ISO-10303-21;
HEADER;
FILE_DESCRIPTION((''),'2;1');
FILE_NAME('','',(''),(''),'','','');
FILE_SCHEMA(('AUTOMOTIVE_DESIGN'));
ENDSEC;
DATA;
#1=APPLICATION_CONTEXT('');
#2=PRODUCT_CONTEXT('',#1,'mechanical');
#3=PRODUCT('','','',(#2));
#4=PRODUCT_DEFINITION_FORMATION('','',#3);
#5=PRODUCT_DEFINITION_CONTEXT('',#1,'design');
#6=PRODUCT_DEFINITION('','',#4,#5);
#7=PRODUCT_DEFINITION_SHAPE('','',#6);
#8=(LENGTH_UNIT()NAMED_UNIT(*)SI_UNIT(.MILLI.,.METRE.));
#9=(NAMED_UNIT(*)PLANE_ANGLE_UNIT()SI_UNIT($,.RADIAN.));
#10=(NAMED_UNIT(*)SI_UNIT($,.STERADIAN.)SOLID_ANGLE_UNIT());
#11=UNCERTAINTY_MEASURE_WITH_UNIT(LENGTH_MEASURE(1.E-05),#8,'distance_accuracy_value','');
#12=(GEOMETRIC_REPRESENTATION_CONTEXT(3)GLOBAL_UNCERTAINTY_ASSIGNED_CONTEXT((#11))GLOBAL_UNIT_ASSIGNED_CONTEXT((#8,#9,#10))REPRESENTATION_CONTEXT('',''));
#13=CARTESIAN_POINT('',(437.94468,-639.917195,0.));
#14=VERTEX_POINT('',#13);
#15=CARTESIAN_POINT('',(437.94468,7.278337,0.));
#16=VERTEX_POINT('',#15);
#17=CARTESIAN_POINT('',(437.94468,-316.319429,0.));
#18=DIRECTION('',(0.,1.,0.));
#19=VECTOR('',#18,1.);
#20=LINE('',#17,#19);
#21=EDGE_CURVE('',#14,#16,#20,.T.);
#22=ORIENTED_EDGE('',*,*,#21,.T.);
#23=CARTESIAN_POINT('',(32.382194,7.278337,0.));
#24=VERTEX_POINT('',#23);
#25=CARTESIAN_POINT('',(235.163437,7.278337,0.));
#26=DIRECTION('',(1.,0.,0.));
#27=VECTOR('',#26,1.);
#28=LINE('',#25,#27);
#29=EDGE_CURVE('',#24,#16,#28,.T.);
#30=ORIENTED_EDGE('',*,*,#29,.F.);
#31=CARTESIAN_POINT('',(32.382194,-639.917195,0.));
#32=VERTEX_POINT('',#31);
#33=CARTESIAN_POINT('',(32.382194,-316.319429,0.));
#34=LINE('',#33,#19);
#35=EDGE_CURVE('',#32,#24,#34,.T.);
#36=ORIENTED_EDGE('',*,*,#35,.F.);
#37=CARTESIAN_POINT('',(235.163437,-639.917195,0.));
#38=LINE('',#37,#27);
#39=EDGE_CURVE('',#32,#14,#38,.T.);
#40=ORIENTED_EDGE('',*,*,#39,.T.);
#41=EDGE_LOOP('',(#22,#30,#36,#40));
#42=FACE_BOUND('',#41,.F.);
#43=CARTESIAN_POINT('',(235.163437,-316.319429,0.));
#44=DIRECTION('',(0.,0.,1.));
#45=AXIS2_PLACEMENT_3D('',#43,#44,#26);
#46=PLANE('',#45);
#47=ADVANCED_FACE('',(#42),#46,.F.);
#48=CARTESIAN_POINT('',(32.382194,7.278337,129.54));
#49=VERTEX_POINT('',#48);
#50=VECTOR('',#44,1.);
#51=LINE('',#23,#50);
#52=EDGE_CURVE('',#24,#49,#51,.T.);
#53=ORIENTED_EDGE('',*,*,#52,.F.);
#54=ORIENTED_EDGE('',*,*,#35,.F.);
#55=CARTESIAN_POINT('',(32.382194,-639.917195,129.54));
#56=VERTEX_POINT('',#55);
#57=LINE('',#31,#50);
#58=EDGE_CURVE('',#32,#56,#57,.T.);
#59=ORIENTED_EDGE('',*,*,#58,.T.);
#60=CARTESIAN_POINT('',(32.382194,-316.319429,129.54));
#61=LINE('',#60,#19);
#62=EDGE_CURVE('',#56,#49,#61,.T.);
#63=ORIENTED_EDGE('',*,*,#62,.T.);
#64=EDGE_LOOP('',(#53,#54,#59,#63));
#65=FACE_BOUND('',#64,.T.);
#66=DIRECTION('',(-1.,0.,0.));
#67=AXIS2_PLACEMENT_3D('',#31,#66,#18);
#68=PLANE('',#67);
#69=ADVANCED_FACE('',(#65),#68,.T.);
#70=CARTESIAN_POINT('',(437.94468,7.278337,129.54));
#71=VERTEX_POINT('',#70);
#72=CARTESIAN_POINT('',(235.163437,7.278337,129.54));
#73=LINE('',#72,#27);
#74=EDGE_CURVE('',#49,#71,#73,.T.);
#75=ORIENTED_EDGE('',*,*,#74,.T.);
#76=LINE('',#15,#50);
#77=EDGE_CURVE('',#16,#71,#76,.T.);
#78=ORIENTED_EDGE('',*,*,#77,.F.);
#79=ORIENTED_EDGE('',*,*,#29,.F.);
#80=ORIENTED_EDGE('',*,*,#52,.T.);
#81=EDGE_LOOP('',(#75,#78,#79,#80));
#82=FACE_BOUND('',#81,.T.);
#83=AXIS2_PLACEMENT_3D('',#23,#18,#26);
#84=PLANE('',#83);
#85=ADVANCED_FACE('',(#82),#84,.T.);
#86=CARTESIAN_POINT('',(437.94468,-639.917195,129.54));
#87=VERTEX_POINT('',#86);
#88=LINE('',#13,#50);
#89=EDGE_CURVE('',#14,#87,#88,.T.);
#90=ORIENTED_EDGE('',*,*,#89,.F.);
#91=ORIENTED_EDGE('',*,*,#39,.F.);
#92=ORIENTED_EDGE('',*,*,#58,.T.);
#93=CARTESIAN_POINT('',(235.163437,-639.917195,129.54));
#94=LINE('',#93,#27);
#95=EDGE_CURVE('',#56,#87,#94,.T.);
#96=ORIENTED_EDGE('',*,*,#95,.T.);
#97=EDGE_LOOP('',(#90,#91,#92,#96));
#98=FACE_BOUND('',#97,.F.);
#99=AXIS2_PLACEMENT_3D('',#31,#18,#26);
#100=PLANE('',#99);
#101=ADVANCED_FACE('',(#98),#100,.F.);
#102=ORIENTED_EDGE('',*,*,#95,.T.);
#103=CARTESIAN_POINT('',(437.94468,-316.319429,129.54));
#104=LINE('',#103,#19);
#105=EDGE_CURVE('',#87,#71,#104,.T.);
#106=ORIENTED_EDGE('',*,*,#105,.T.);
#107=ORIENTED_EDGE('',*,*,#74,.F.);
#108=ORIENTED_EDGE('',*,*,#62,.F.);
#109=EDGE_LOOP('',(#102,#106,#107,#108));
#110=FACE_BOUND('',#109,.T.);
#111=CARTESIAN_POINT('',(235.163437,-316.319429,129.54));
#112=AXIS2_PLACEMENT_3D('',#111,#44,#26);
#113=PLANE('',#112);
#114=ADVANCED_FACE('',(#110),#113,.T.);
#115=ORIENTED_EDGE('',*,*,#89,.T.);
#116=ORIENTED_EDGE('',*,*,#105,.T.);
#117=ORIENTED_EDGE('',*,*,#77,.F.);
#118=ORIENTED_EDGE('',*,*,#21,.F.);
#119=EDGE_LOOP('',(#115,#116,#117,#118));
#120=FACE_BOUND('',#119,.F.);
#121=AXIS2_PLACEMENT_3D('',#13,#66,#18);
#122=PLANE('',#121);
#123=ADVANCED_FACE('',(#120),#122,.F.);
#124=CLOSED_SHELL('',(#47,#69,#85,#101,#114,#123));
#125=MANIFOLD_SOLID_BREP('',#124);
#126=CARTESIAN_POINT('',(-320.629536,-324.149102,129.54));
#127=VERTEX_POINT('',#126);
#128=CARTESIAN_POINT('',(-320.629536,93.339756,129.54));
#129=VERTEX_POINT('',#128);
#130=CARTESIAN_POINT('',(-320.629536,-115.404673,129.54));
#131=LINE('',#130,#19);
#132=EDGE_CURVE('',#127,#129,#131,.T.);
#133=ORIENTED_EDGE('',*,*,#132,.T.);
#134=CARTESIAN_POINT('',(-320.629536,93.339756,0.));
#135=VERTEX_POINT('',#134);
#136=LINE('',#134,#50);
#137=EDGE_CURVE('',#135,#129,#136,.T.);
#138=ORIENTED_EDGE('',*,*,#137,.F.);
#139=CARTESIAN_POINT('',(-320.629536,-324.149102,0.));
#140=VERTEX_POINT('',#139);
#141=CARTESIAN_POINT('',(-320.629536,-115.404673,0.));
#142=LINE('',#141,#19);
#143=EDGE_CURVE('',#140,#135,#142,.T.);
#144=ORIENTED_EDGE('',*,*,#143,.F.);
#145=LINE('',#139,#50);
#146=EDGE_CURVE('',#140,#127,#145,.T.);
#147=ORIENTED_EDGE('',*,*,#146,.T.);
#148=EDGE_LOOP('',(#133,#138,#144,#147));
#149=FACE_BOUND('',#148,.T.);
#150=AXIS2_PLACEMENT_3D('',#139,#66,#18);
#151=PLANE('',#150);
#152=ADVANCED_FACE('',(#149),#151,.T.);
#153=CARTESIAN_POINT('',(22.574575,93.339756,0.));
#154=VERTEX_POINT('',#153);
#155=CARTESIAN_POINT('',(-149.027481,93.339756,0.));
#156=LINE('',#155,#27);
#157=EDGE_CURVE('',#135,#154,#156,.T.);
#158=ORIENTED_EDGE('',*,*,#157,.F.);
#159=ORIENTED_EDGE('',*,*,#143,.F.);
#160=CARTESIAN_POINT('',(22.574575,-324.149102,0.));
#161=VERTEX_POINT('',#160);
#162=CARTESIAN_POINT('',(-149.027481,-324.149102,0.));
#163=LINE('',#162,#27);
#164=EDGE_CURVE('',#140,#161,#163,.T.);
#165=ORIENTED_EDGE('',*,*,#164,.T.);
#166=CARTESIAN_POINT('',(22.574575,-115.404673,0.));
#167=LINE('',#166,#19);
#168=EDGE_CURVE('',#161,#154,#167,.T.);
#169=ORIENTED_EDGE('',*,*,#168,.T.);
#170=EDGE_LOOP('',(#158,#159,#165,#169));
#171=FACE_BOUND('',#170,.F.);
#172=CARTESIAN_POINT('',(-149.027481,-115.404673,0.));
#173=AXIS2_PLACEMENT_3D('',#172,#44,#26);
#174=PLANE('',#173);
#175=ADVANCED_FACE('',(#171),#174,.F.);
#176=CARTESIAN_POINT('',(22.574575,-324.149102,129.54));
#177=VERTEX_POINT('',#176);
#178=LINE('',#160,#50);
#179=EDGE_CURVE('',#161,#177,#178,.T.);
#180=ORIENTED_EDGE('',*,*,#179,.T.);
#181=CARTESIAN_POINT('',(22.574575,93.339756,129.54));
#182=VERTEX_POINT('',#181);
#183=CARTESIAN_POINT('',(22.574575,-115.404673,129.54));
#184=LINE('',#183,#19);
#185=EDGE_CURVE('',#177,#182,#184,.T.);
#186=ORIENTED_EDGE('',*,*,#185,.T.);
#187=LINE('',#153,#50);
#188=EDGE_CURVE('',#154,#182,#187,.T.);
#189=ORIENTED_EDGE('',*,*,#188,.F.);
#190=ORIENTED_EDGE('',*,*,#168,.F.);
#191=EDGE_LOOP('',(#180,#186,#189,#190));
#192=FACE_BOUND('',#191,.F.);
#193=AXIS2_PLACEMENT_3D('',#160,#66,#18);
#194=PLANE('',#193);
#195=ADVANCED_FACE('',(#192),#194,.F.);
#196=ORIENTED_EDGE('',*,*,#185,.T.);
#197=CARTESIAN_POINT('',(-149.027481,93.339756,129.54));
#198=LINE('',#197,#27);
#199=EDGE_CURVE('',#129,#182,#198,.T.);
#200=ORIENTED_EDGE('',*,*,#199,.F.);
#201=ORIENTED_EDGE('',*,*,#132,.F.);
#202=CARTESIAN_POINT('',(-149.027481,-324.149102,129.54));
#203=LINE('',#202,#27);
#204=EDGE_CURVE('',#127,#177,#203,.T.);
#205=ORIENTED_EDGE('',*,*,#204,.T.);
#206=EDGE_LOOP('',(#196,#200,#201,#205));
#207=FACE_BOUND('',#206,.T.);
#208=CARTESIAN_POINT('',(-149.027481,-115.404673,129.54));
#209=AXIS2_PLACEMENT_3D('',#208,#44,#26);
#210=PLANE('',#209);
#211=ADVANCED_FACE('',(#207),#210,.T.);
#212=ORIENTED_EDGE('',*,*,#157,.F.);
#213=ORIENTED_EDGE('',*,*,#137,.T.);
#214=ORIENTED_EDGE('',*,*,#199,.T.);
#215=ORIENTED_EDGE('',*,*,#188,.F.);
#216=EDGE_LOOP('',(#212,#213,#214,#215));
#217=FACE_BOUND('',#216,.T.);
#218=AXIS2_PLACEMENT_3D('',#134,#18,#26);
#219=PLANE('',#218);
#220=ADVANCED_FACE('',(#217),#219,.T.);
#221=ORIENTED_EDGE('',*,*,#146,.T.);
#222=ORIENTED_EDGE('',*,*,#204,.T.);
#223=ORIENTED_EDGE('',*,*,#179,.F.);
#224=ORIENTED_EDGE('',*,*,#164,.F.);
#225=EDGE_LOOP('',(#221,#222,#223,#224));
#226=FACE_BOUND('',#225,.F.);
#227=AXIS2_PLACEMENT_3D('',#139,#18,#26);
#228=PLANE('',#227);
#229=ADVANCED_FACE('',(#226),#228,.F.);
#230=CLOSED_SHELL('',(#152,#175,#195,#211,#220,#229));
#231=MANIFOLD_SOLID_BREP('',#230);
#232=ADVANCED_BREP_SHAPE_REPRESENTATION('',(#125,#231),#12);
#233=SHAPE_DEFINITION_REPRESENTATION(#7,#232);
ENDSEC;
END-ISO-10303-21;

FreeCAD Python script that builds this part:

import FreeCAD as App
import Part
import Sketcher

doc = App.newDocument("Part")
params = doc.addObject("Spreadsheet::Sheet", "Params")
for row, (alias, value) in enumerate([
    ("pad1_length", "5.1 in"),
], start=1):
    params.set(f"A{row}", alias)
    params.set(f"B{row}", "=" + value)
    params.setAlias(f"B{row}", alias)

body = doc.addObject("PartDesign::Body", "Body")
body.AllowCompound = True

# Sketch on XY plane
sketch1 = body.newObject("Sketcher::SketchObject", "Sketch")
sketch1.AttachmentSupport = (doc.getObject("XY_Plane"), [""])
sketch1.MapMode = "FlatFace"
sketch1.addGeometry(Part.LineSegment(App.Vector(-321, 93, 0), App.Vector(-321, -324, 0)), False)
sketch1.addGeometry(Part.LineSegment(App.Vector(-321, -324, 0), App.Vector(23, -324, 0)), False)
sketch1.addGeometry(Part.LineSegment(App.Vector(23, -324, 0), App.Vector(23, 93, 0)), False)
sketch1.addGeometry(Part.LineSegment(App.Vector(23, 93, 0), App.Vector(-321, 93, 0)), False)
sketch1.addGeometry(Part.LineSegment(App.Vector(32, 7, 0), App.Vector(32, -640, 0)), False)
sketch1.addGeometry(Part.LineSegment(App.Vector(32, -640, 0), App.Vector(438, -640, 0)), False)
sketch1.addGeometry(Part.LineSegment(App.Vector(438, -640, 0), App.Vector(438, 7, 0)), False)
sketch1.addGeometry(Part.LineSegment(App.Vector(438, 7, 0), App.Vector(32, 7, 0)), False)
sketch1.addConstraint(Sketcher.Constraint("Coincident", 0, 2, 1, 1))
sketch1.addConstraint(Sketcher.Constraint("Coincident", 1, 2, 2, 1))
sketch1.addConstraint(Sketcher.Constraint("Coincident", 2, 2, 3, 1))
sketch1.addConstraint(Sketcher.Constraint("Coincident", 3, 2, 0, 1))
sketch1.addConstraint(Sketcher.Constraint("Coincident", 4, 2, 5, 1))
sketch1.addConstraint(Sketcher.Constraint("Coincident", 5, 2, 6, 1))
sketch1.addConstraint(Sketcher.Constraint("Coincident", 6, 2, 7, 1))
sketch1.addConstraint(Sketcher.Constraint("Coincident", 7, 2, 4, 1))
sketch1.addConstraint(Sketcher.Constraint("Vertical", 0))
sketch1.addConstraint(Sketcher.Constraint("Horizontal", 1))
sketch1.addConstraint(Sketcher.Constraint("Vertical", 2))
sketch1.addConstraint(Sketcher.Constraint("Horizontal", 3))
sketch1.addConstraint(Sketcher.Constraint("Vertical", 4))
sketch1.addConstraint(Sketcher.Constraint("Horizontal", 5))
sketch1.addConstraint(Sketcher.Constraint("Vertical", 6))
sketch1.addConstraint(Sketcher.Constraint("Horizontal", 7))
sketch1.addConstraint(Sketcher.Constraint("DistanceX", 1, 1, 1, 2, 343.204111))
sketch1.addConstraint(Sketcher.Constraint("DistanceY", 0, 2, 0, 1, 417.488858))
sketch1.addConstraint(Sketcher.Constraint("DistanceY", 4, 2, 4, 1, 647.195532))
sketch1.addConstraint(Sketcher.Constraint("DistanceX", 5, 1, 5, 2, 405.562486))
sketch1.addConstraint(Sketcher.Constraint("DistanceX", -1, 1, 5, 2, 437.94468))
sketch1.addConstraint(Sketcher.Constraint("DistanceX", 1, 2, 4, 2, 9.807619))
sketch1.addConstraint(Sketcher.Constraint("DistanceY", 4, 2, 2, 2, 733.256951))
sketch1.addConstraint(Sketcher.Constraint("DistanceY", 0, 2, -1, 1, 324.149102))
pad1 = body.newObject("PartDesign::Pad", "Pad")
pad1.Profile = sketch1
pad1.setExpression("Length", "Params.pad1_length")

doc.recompute()
